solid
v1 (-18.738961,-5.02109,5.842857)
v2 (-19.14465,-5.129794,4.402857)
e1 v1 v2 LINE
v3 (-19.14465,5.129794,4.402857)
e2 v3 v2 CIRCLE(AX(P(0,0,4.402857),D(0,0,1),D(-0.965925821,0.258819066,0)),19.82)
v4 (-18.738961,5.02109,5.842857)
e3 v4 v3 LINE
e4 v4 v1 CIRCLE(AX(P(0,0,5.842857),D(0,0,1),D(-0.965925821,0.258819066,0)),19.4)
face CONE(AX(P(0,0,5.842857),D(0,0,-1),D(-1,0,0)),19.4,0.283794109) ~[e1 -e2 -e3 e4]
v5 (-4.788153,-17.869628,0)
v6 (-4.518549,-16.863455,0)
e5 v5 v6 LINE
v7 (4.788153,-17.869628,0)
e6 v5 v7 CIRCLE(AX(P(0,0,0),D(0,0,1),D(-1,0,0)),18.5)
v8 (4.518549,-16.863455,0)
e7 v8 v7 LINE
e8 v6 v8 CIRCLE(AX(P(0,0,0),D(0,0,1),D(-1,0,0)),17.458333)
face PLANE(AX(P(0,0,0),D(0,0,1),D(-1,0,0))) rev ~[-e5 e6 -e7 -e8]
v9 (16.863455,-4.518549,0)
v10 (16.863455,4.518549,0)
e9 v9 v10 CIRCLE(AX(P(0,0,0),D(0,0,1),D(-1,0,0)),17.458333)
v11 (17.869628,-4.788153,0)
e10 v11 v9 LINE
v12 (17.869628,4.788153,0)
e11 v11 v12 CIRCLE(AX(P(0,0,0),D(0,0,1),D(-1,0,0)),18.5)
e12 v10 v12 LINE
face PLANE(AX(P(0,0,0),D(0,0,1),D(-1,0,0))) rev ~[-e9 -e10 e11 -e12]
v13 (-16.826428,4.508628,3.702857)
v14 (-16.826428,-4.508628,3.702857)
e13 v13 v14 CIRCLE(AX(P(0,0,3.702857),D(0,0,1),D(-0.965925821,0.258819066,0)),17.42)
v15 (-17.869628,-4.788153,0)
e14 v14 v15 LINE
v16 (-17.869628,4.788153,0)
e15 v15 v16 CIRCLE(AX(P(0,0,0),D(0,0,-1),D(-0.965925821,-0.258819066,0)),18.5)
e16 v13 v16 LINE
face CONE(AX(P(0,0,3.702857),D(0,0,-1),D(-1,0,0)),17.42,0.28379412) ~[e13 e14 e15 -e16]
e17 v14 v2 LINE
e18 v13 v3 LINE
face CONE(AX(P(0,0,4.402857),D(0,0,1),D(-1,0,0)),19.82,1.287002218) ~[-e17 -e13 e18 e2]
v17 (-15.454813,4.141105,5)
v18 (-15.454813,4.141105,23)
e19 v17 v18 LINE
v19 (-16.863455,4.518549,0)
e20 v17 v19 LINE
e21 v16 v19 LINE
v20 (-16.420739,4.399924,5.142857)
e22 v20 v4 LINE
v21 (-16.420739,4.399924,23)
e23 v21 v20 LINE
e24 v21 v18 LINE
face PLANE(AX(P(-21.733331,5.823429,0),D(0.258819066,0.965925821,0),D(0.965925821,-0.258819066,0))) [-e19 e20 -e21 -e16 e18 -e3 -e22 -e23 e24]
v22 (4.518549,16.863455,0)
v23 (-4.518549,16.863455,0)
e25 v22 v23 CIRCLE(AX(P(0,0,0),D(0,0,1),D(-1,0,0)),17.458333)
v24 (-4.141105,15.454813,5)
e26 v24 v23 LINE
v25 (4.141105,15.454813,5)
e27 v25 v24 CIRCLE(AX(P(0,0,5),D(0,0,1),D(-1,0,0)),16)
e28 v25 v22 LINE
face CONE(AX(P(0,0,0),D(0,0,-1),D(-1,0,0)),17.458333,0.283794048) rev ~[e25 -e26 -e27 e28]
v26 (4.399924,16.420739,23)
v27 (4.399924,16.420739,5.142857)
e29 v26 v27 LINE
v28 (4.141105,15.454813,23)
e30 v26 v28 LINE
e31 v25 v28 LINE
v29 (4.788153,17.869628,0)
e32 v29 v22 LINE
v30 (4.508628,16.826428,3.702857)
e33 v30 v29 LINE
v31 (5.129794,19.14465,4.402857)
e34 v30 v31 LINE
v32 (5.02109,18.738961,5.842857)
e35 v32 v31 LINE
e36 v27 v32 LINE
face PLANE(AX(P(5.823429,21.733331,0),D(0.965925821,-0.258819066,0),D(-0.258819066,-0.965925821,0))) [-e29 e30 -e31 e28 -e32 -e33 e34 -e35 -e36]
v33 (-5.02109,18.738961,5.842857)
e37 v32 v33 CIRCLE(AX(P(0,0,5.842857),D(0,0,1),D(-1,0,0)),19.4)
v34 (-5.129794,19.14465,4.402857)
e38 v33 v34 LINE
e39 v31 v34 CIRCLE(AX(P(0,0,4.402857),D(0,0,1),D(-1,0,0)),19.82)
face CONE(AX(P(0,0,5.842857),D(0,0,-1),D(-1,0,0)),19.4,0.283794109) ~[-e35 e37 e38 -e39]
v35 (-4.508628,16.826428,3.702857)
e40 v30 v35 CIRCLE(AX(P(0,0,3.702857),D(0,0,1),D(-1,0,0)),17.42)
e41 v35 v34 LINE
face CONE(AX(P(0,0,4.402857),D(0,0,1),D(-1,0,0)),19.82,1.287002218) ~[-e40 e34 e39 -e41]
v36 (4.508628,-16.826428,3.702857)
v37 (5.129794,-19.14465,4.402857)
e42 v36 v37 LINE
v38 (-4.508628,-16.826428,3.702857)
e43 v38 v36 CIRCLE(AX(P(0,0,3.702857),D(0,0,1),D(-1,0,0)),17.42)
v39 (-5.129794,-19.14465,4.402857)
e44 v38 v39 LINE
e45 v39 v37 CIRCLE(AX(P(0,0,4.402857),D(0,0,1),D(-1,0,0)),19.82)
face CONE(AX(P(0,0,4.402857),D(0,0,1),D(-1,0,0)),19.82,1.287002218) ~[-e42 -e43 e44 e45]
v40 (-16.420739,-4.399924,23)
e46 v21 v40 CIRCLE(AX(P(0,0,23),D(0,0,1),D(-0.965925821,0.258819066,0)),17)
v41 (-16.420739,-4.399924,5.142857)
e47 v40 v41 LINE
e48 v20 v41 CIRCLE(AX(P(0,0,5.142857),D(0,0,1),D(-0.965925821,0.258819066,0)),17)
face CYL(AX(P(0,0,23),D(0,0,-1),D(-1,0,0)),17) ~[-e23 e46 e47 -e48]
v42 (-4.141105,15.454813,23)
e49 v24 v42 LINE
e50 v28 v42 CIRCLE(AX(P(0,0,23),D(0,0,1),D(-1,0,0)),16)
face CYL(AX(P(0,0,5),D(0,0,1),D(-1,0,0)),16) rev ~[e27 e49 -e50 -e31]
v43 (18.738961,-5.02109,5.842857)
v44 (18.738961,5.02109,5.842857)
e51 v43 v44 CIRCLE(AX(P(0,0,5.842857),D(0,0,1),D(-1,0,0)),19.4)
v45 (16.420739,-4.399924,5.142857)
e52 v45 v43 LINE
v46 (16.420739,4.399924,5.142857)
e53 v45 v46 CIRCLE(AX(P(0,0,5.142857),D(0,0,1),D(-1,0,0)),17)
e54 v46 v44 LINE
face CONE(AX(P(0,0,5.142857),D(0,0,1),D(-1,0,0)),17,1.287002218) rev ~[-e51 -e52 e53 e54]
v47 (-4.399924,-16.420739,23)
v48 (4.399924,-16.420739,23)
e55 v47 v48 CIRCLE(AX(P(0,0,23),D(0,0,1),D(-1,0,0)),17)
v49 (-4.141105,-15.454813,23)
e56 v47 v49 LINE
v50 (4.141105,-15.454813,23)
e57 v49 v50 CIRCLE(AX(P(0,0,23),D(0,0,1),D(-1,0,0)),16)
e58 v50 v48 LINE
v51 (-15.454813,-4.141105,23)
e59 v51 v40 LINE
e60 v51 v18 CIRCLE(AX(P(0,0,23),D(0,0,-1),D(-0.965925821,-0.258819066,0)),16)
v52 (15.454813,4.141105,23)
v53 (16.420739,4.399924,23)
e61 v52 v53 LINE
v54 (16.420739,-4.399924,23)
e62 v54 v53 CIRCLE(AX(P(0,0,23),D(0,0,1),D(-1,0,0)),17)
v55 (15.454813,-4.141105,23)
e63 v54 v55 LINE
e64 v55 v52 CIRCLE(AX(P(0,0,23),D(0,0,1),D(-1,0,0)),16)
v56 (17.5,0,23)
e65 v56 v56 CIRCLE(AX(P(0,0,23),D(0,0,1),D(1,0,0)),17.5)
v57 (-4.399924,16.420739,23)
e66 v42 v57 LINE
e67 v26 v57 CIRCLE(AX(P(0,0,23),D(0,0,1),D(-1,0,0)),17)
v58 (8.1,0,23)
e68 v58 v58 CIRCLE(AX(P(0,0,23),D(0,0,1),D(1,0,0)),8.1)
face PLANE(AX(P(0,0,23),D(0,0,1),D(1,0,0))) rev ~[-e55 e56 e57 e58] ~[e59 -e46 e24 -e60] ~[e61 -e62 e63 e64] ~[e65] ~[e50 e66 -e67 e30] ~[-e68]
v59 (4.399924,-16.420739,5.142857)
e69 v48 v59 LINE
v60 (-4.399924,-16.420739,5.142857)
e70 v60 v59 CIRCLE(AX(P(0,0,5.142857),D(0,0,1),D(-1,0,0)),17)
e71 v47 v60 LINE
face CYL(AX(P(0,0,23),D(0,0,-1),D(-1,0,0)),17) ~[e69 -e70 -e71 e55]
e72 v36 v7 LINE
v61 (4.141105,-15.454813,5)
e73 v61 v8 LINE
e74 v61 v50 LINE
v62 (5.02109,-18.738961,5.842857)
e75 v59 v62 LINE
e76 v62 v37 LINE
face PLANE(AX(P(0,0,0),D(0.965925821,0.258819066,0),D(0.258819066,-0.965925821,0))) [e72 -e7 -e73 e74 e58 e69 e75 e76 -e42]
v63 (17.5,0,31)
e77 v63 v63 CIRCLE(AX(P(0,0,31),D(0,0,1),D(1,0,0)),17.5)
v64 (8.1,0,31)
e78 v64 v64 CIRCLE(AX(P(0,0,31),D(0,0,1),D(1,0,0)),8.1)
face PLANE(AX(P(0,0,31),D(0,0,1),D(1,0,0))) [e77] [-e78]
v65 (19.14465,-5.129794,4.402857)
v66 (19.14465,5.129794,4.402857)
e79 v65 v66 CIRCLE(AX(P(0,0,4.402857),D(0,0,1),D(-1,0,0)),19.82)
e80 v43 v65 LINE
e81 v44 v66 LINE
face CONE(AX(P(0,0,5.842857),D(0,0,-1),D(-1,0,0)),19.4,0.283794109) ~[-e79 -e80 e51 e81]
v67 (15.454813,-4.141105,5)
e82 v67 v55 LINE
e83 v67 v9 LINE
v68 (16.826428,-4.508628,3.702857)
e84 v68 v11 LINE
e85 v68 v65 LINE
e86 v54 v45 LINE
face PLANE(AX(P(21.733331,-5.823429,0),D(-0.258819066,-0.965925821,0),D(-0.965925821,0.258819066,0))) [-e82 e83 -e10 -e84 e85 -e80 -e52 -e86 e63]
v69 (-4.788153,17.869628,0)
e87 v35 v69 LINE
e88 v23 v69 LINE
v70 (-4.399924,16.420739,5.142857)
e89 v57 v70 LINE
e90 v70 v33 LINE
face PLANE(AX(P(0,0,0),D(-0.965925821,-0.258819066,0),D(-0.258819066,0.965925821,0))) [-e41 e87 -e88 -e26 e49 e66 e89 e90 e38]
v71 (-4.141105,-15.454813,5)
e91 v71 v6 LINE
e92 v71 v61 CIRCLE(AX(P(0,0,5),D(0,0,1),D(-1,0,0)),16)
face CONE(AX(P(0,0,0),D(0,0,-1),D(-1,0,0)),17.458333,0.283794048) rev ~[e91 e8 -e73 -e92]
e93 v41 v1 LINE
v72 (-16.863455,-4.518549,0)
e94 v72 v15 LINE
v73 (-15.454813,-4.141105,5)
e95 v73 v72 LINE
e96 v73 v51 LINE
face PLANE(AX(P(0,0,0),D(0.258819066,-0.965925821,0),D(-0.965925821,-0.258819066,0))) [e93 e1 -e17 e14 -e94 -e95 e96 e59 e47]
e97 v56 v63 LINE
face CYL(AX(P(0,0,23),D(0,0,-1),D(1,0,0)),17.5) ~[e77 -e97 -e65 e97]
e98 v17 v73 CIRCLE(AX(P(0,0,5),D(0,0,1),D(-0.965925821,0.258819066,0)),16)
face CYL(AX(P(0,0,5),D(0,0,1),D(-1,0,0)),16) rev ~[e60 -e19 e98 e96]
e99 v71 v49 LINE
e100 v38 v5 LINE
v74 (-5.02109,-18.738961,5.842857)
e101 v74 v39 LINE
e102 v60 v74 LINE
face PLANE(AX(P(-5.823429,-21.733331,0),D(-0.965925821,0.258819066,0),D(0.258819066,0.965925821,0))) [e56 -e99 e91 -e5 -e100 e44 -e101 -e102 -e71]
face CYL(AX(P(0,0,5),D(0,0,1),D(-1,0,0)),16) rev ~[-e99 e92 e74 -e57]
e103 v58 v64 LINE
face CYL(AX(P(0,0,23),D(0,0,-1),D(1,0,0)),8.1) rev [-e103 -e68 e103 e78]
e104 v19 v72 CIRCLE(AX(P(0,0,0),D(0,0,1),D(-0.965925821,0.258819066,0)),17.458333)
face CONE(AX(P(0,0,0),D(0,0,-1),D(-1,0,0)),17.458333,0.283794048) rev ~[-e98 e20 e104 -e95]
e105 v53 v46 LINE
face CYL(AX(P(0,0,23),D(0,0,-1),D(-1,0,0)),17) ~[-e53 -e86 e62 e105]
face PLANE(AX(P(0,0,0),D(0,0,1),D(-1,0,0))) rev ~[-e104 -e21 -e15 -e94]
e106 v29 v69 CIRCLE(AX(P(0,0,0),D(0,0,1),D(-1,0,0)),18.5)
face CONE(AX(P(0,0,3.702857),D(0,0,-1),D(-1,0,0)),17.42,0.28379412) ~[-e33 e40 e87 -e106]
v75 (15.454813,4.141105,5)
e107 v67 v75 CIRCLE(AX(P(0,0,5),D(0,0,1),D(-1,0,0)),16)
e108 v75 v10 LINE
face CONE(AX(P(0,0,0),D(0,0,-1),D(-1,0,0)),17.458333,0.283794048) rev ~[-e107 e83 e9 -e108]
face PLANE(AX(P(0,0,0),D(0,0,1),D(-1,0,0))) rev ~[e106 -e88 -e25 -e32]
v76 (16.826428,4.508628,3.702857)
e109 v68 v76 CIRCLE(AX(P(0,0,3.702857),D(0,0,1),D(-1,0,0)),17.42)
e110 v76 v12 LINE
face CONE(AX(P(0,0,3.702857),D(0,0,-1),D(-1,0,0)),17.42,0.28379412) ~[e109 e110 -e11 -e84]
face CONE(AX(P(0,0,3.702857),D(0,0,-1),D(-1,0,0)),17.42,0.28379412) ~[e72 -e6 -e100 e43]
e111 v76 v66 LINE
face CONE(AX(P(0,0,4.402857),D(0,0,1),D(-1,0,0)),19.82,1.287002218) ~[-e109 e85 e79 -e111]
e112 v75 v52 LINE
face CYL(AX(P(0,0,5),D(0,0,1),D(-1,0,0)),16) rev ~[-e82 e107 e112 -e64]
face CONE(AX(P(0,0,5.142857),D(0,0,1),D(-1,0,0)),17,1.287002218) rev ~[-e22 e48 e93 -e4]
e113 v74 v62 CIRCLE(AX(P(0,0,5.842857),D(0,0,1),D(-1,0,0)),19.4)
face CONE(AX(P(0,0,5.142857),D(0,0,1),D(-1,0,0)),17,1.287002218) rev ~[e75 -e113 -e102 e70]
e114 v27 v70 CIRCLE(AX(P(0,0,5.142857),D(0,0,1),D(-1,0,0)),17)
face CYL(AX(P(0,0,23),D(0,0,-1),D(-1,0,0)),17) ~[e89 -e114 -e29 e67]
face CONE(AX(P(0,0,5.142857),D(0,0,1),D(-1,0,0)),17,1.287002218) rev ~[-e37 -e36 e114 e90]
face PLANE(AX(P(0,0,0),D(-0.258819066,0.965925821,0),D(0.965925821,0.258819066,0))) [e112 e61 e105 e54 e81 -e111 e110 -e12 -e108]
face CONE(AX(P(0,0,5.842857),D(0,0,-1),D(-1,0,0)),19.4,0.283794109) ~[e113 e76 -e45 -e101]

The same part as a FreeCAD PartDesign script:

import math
import FreeCAD as App
import Part
import Sketcher
Q = App.Units.Quantity

doc = App.newDocument("Part")
body = doc.addObject("PartDesign::Body", "Body")

# Sketch on XZ plane
sketch1 = body.newObject("Sketcher::SketchObject", "Sketch")
sketch1.AttachmentSupport = (doc.getObject("XZ_Plane"), [""])
sketch1.MapMode = "FlatFace"
sketch1.addGeometry([
    Part.LineSegment(App.Vector(-16, 5, 0), App.Vector(-16, 23, 0)),  # 0
    Part.LineSegment(App.Vector(-16, 23, 0), App.Vector(-17, 23, 0)),  # 1
    Part.LineSegment(App.Vector(-17, 23, 0), App.Vector(-17, 5.1, 0)),  # 2
    Part.LineSegment(App.Vector(-17, 5.1, 0), App.Vector(-19.4, 5.8, 0)),  # 3
    Part.LineSegment(App.Vector(-19.4, 5.8, 0), App.Vector(-19.8, 4.4, 0)),  # 4
    Part.LineSegment(App.Vector(-19.8, 4.4, 0), App.Vector(-17.4, 3.7, 0)),  # 5
    Part.LineSegment(App.Vector(-17.4, 3.7, 0), App.Vector(-18.5, 0, 0)),  # 6
    Part.LineSegment(App.Vector(-18.5, 0, 0), App.Vector(-17.5, 0, 0)),  # 7
    Part.LineSegment(App.Vector(-17.5, 0, 0), App.Vector(-16, 5, 0)),  # 8
], False)
sketch1.addConstraint([
    Sketcher.Constraint("Coincident", 0, 2, 1, 1),
    Sketcher.Constraint("Coincident", 1, 2, 2, 1),
    Sketcher.Constraint("Coincident", 2, 2, 3, 1),
    Sketcher.Constraint("Coincident", 3, 2, 4, 1),
    Sketcher.Constraint("Coincident", 4, 2, 5, 1),
    Sketcher.Constraint("Coincident", 5, 2, 6, 1),
    Sketcher.Constraint("Coincident", 6, 2, 7, 1),
    Sketcher.Constraint("Coincident", 7, 2, 8, 1),
    Sketcher.Constraint("Coincident", 8, 2, 0, 1),
    Sketcher.Constraint("Vertical", 0),
    Sketcher.Constraint("Horizontal", 1),
    Sketcher.Constraint("Vertical", 2),
    Sketcher.Constraint("Horizontal", 7),
    Sketcher.Constraint("PointOnObject", 6, 2, -1),
    Sketcher.Constraint("Perpendicular", 3, 4),
    Sketcher.Constraint("Perpendicular", 4, 5),
    Sketcher.Constraint("Perpendicular", 5, 6),
    Sketcher.Constraint("Parallel", 6, 8),
    Sketcher.Constraint("Equal", 3, 5),
    Sketcher.Constraint("DistanceX", 1, 2, 1, 1, 1.0),
    Sketcher.Constraint("DistanceY", 0, 1, 0, 2, 18.0),
    Sketcher.Constraint("DistanceX", 0, 2, -1, 1, 16.0),
    Sketcher.Constraint("DistanceY", -1, 1, 0, 2, 23.0),
    Sketcher.Constraint("Distance", 3, 2.5),
    Sketcher.Constraint("Distance", 4, 1.5),
    Sketcher.Constraint("DistanceX", 3, 2, -1, 1, 19.4),
    Sketcher.Constraint("DistanceX", 6, 2, -1, 1, 18.5),
])
revolution = body.newObject("PartDesign::Revolution", "Revolution")
revolution.Profile = sketch1
revolution.ReferenceAxis = (sketch1, ["V_Axis"])
revolution.Angle = 360

# Sketch on XY plane
sketch2 = body.newObject("Sketcher::SketchObject", "Sketch001")
sketch2.AttachmentSupport = (doc.getObject("XY_Plane"), [""])
sketch2.MapMode = "FlatFace"
sketch2.AttachmentOffset = App.Placement(App.Vector(0, 0, 23), App.Rotation())
sketch2.addGeometry([
    Part.Circle(App.Vector(0, 0, 0), App.Vector(0, 0, 1), 18),
    Part.Circle(App.Vector(0, 0, 0), App.Vector(0, 0, 1), 8),
], False)
sketch2.addConstraint([
    Sketcher.Constraint("Coincident", 0, 3, -1, 1),
    Sketcher.Constraint("Coincident", 1, 3, -1, 1),
    Sketcher.Constraint("Diameter", 0, 35.0),
    Sketcher.Constraint("Diameter", 1, 16.2),
])
pad1 = body.newObject("PartDesign::Pad", "Pad")
pad1.Profile = sketch2
pad1.Length = 8

# Sketch on XY plane
sketch3 = body.newObject("Sketcher::SketchObject", "Sketch002")
sketch3.AttachmentSupport = (doc.getObject("XY_Plane"), [""])
sketch3.MapMode = "FlatFace"
sketch3.addGeometry([
    Part.LineSegment(App.Vector(0, 0, 0), App.Vector(-22, -6, 0)),  # 0
    Part.ArcOfCircle(Part.Circle(App.Vector(0, 0, 0), App.Vector(0, 0, 1), 22), math.radians(-165), math.radians(-105)),  # 1
    Part.LineSegment(App.Vector(-6, -22, 0), App.Vector(0, 0, 0)),  # 2
    Part.LineSegment(App.Vector(-22, 6, 0), App.Vector(0, 0, 0)),  # 3
    Part.LineSegment(App.Vector(0, 0, 0), App.Vector(-6, 22, 0)),  # 4
    Part.ArcOfCircle(Part.Circle(App.Vector(0, 0, 0), App.Vector(0, 0, 1), 22), math.radians(105), math.radians(165)),  # 5
    Part.LineSegment(App.Vector(6, 22, 0), App.Vector(0, 0, 0)),  # 6
    Part.LineSegment(App.Vector(0, 0, 0), App.Vector(22, 6, 0)),  # 7
    Part.ArcOfCircle(Part.Circle(App.Vector(0, 0, 0), App.Vector(0, 0, 1), 22), math.radians(15), math.radians(75)),  # 8
    Part.LineSegment(App.Vector(22, -6, 0), App.Vector(0, 0, 0)),  # 9
    Part.LineSegment(App.Vector(0, 0, 0), App.Vector(6, -22, 0)),  # 10
    Part.ArcOfCircle(Part.Circle(App.Vector(0, 0, 0), App.Vector(0, 0, 1), 22), math.radians(-75), math.radians(-15)),  # 11
], False)
sketch3.addConstraint([
    Sketcher.Constraint("Coincident", 0, 2, 1, 1),
    Sketcher.Constraint("Coincident", 1, 2, 2, 1),
    Sketcher.Constraint("Coincident", 2, 2, 0, 1),
    Sketcher.Constraint("Coincident", 3, 2, 4, 1),
    Sketcher.Constraint("Coincident", 4, 2, 5, 1),
    Sketcher.Constraint("Coincident", 5, 2, 3, 1),
    Sketcher.Constraint("Coincident", 6, 2, 7, 1),
    Sketcher.Constraint("Coincident", 7, 2, 8, 1),
    Sketcher.Constraint("Coincident", 8, 2, 6, 1),
    Sketcher.Constraint("Coincident", 9, 2, 10, 1),
    Sketcher.Constraint("Coincident", 10, 2, 11, 1),
    Sketcher.Constraint("Coincident", 11, 2, 9, 1),
    Sketcher.Constraint("Coincident", 1, 3, -1, 1),
    Sketcher.Constraint("Coincident", 5, 3, -1, 1),
    Sketcher.Constraint("Coincident", 8, 3, -1, 1),
    Sketcher.Constraint("Coincident", 11, 3, -1, 1),
    Sketcher.Constraint("Coincident", 2, 2, -1, 1),
    Sketcher.Constraint("Coincident", 3, 2, -1, 1),
    Sketcher.Constraint("Coincident", 6, 2, -1, 1),
    Sketcher.Constraint("Coincident", 9, 2, -1, 1),
    Sketcher.Constraint("Equal", 1, 5),
    Sketcher.Constraint("Equal", 5, 8),
    Sketcher.Constraint("Equal", 8, 11),
    Sketcher.Constraint("Perpendicular", 2, 3),
    Sketcher.Constraint("Perpendicular", 0, 4),
    Sketcher.Constraint("Perpendicular", 3, 6),
    Sketcher.Constraint("Perpendicular", 4, 7),
    Sketcher.Constraint("Perpendicular", 6, 9),
    Sketcher.Constraint("Perpendicular", 7, 10),
    Sketcher.Constraint("Horizontal", 5, 2, 7, 2),
    Sketcher.Constraint("Angle", 0, Q("-164.999999 deg")),
    Sketcher.Constraint("Distance", 0, 22.5),
])
pocket1 = body.newObject("PartDesign::Pocket", "Pocket")
pocket1.Profile = sketch3
pocket1.Length = 23
pocket1.Reversed = True

doc.recompute()
